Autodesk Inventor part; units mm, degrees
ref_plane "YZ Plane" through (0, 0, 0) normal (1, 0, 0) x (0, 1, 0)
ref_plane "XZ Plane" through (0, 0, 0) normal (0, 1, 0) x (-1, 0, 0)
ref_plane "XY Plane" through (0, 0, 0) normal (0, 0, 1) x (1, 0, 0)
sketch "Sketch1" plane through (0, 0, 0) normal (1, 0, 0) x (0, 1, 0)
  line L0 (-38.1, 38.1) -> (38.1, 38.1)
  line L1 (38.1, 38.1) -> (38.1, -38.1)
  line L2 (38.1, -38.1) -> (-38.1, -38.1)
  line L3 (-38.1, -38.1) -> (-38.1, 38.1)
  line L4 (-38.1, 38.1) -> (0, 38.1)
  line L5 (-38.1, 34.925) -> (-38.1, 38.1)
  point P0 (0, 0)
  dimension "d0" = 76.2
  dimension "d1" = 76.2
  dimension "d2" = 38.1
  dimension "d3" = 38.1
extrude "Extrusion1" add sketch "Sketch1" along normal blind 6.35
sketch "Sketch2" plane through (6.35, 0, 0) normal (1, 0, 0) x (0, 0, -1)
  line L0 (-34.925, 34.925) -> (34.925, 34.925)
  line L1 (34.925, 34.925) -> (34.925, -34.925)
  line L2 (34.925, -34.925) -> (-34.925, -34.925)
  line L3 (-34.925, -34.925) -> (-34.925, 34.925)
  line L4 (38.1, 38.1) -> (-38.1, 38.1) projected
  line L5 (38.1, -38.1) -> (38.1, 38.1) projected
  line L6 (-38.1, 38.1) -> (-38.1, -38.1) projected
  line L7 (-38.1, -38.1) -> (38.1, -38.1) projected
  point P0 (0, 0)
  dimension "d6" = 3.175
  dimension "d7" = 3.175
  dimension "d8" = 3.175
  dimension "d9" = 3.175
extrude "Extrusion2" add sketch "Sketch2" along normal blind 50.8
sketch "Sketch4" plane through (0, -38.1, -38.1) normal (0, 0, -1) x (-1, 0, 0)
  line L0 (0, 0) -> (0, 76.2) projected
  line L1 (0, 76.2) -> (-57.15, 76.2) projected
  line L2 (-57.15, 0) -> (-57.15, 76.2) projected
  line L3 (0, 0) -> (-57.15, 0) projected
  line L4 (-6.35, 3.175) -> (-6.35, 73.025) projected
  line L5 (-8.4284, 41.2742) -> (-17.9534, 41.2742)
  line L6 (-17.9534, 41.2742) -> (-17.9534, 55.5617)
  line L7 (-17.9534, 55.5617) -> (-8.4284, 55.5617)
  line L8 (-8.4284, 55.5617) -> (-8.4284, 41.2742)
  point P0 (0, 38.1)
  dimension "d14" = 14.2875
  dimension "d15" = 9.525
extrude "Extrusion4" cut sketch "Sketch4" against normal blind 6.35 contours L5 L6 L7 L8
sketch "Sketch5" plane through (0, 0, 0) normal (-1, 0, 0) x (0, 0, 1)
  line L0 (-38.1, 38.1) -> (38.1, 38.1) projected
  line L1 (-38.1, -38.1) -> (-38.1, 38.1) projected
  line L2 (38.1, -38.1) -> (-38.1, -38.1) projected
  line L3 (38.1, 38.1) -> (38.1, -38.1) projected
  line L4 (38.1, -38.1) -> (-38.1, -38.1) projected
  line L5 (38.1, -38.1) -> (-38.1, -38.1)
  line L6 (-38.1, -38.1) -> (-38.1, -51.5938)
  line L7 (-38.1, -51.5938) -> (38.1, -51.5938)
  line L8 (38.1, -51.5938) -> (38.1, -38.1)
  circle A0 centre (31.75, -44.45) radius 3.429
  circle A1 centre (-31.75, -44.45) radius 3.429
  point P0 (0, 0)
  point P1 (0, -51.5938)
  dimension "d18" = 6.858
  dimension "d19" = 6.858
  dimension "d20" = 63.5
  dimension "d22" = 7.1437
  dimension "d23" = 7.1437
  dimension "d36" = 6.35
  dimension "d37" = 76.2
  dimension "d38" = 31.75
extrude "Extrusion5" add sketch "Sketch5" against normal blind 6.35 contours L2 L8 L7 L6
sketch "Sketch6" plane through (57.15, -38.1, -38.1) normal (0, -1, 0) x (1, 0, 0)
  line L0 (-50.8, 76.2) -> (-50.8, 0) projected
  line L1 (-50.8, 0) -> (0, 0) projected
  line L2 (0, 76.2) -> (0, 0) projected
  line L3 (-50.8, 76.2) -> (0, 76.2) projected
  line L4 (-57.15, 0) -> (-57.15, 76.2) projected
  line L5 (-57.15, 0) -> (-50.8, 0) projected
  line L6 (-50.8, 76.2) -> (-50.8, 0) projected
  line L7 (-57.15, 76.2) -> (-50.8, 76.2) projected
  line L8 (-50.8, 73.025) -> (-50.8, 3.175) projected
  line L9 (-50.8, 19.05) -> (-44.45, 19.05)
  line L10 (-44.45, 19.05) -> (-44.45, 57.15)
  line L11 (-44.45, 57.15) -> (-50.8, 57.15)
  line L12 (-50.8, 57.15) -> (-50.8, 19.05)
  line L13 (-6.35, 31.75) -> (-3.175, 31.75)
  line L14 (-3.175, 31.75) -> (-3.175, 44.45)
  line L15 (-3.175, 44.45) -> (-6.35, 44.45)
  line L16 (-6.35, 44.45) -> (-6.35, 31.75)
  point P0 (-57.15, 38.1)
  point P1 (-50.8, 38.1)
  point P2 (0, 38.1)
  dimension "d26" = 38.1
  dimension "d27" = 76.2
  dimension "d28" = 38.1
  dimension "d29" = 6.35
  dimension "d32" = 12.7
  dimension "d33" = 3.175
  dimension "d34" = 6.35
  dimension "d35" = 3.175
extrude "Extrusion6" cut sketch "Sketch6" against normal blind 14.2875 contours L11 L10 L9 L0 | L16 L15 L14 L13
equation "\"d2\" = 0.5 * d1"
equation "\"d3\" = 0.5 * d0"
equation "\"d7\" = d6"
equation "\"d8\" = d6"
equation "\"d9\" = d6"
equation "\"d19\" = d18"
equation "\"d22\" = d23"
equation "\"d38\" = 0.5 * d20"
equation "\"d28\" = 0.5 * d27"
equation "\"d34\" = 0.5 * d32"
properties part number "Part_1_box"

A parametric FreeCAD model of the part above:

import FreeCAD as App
import Part
import Sketcher
Q = App.Units.Quantity


def add_polygon(sketch, points):
    """Adds a closed chain of lines whose ends are joined by coincident constraints."""
    first, n = sketch.GeometryCount, len(points)
    for a, b in zip(points, points[1:] + points[:1]):
        sketch.addGeometry(Part.LineSegment(App.Vector(*a, 0), App.Vector(*b, 0)), False)
    for i in range(n):
        sketch.addConstraint(Sketcher.Constraint("Coincident", first + i, 2, first + (i + 1) % n, 1))

doc = App.newDocument("Part")
params = doc.addObject("Spreadsheet::Sheet", "Params")
for row, (alias, value) in enumerate([
    ("sketch1_width", "3 in"),
    ("pad1_length", "0.25 in"),
    ("sketch2_width", "3 in"),
    ("pad2_length", "2 in"),
    ("sketch3_width", "0.375 in"),
    ("sketch3_height", "0.5625 in"),
    ("pocket1_length", "0.25 in"),
    ("sketch4_diameter", "0.27 in"),
    ("sketch4_height", "3 in"),
    ("pad3_length", "0.25 in"),
    ("sketch5_height", "1.5 in"),
    ("sketch5_height2", "0.5 in"),
    ("sketch5_width", "0.25 in"),
    ("sketch5_width2", "0.125 in"),
    ("pocket2_length", "0.5625 in"),
], start=1):
    params.set(f"A{row}", alias)
    params.set(f"B{row}", "=" + value)
    params.setAlias(f"B{row}", alias)

body = doc.addObject("PartDesign::Body", "Body")

# Sketch on YZ plane
sketch1 = body.newObject("Sketcher::SketchObject", "Sketch")
sketch1.AttachmentSupport = (doc.getObject("YZ_Plane"), [""])
sketch1.MapMode = "FlatFace"
add_polygon(sketch1, [(38, 38), (-38, 38), (-38, -38), (38, -38)])  # lines 0-3
sketch1.addConstraint(Sketcher.Constraint("Horizontal", 0))
sketch1.addConstraint(Sketcher.Constraint("Vertical", 1))
sketch1.addConstraint(Sketcher.Constraint("Horizontal", 2))
sketch1.addConstraint(Sketcher.Constraint("Vertical", 3))
sketch1.addConstraint(Sketcher.Constraint("Symmetric", 0, 2, 2, 2, -1, 1))
sketch1.addConstraint(Sketcher.Constraint("Equal", 2, 1))
sketch1.addConstraint(Sketcher.Constraint("DistanceX", 0, 2, 0, 1, Q("3 in")))
sketch1.setExpression("Constraints[10]", "Params.sketch1_width")
pad1 = body.newObject("PartDesign::Pad", "Pad")
pad1.Profile = sketch1
pad1.setExpression("Length", "Params.pad1_length")

# Sketch on YZ plane
sketch2 = body.newObject("Sketcher::SketchObject", "Sketch001")
sketch2.AttachmentSupport = (doc.getObject("YZ_Plane"), [""])
sketch2.MapMode = "FlatFace"
sketch2.AttachmentOffset = App.Placement(App.Vector(0, 0, 0.25 * 25.4), App.Rotation())
add_polygon(sketch2, [(-38, -38), (38, -38), (38, 38), (-38, 38)])  # lines 0-3
add_polygon(sketch2, [(-35, 35), (35, 35), (35, -35), (-35, -35)])  # lines 4-7
sketch2.addConstraint(Sketcher.Constraint("Horizontal", 0))
sketch2.addConstraint(Sketcher.Constraint("Vertical", 1))
sketch2.addConstraint(Sketcher.Constraint("Horizontal", 2))
sketch2.addConstraint(Sketcher.Constraint("Vertical", 3))
sketch2.addConstraint(Sketcher.Constraint("Horizontal", 4))
sketch2.addConstraint(Sketcher.Constraint("Vertical", 5))
sketch2.addConstraint(Sketcher.Constraint("Horizontal", 6))
sketch2.addConstraint(Sketcher.Constraint("Vertical", 7))
sketch2.addConstraint(Sketcher.Constraint("Symmetric", 0, 2, 2, 2, -1, 1))
sketch2.addConstraint(Sketcher.Constraint("Symmetric", 4, 2, 6, 2, -1, 1))
sketch2.addConstraint(Sketcher.Constraint("Equal", 2, 1))
sketch2.addConstraint(Sketcher.Constraint("Equal", 6, 5))
sketch2.addConstraint(Sketcher.Constraint("DistanceX", 0, 1, 0, 2, Q("3 in")))
sketch2.addConstraint(Sketcher.Constraint("DistanceX", 4, 2, 1, 2, Q("0.125 in")))
sketch2.setExpression("Constraints[20]", "Params.sketch2_width")
pad2 = body.newObject("PartDesign::Pad", "Pad001")
pad2.Profile = sketch2
pad2.setExpression("Length", "Params.pad2_length")

# Sketch on XY plane
sketch3 = body.newObject("Sketcher::SketchObject", "Sketch002")
sketch3.AttachmentSupport = (doc.getObject("XY_Plane"), [""])
sketch3.MapMode = "FlatFace"
sketch3.AttachmentOffset = App.Placement(App.Vector(0, 0, -1.5 * 25.4), App.Rotation())
add_polygon(sketch3, [(18, 3), (8, 3), (8, 17), (18, 17)])  # lines 0-3
sketch3.addConstraint(Sketcher.Constraint("Horizontal", 0))
sketch3.addConstraint(Sketcher.Constraint("Vertical", 1))
sketch3.addConstraint(Sketcher.Constraint("Horizontal", 2))
sketch3.addConstraint(Sketcher.Constraint("Vertical", 3))
sketch3.addConstraint(Sketcher.Constraint("DistanceX", 0, 2, 0, 1, Q("0.375 in")))
sketch3.addConstraint(Sketcher.Constraint("DistanceY", 1, 1, 1, 2, Q("0.5625 in")))
sketch3.addConstraint(Sketcher.Constraint("DistanceX", -1, 1, 0, 2, 8.4284))
sketch3.addConstraint(Sketcher.Constraint("DistanceY", -1, 1, 0, 2, 3.1742))
sketch3.setExpression("Constraints[8]", "Params.sketch3_width")
sketch3.setExpression("Constraints[9]", "Params.sketch3_height")
pocket1 = body.newObject("PartDesign::Pocket", "Pocket")
pocket1.Profile = sketch3
pocket1.setExpression("Length", "Params.pocket1_length")
pocket1.Reversed = True

# Sketch on YZ plane
sketch4 = body.newObject("Sketcher::SketchObject", "Sketch003")
sketch4.AttachmentSupport = (doc.getObject("YZ_Plane"), [""])
sketch4.MapMode = "FlatFace"
add_polygon(sketch4, [(-38.1, 38.1), (-38.1, -38.1), (-51.6, -38.1), (-51.6, 38.1)])  # lines 0-3
sketch4.addGeometry(Part.Circle(App.Vector(-44.5, -31.8, 0), App.Vector(0, 0, 1), 3.4), False)  # 4
sketch4.addGeometry(Part.Circle(App.Vector(-44.5, 31.8, 0), App.Vector(0, 0, 1), 3.4), False)  # 5
sketch4.addConstraint(Sketcher.Constraint("Vertical", 0))
sketch4.addConstraint(Sketcher.Constraint("Horizontal", 1))
sketch4.addConstraint(Sketcher.Constraint("Vertical", 2))
sketch4.addConstraint(Sketcher.Constraint("Horizontal", 3))
sketch4.addConstraint(Sketcher.Constraint("Equal", 4, 5))
sketch4.addConstraint(Sketcher.Constraint("Symmetric", 4, 3, 5, 3, -1))
sketch4.addConstraint(Sketcher.Constraint("Diameter", 4, Q("0.27 in")))
sketch4.addConstraint(Sketcher.Constraint("DistanceY", 0, 2, 0, 1, Q("3 in")))
sketch4.addConstraint(Sketcher.Constraint("DistanceY", 4, 3, 5, 3, Q("2.5 in")))
sketch4.addConstraint(Sketcher.Constraint("DistanceX", 4, 3, 0, 2, Q("0.25 in")))
sketch4.addConstraint(Sketcher.Constraint("DistanceY", 0, 2, 4, 3, Q("0.25 in")))
sketch4.addConstraint(Sketcher.Constraint("DistanceX", 1, 2, 4, 3, Q("0.281252 in")))
sketch4.addConstraint(Sketcher.Constraint("DistanceX", 0, 2, -1, 1, Q("1.5 in")))
sketch4.setExpression("Constraints[10]", "Params.sketch4_diameter")
sketch4.setExpression("Constraints[11]", "Params.sketch4_height")
pad3 = body.newObject("PartDesign::Pad", "Pad002")
pad3.Profile = sketch4
pad3.setExpression("Length", "Params.pad3_length")

# Sketch on XZ plane
sketch5 = body.newObject("Sketcher::SketchObject", "Sketch004")
sketch5.AttachmentSupport = (doc.getObject("XZ_Plane"), [""])
sketch5.MapMode = "FlatFace"
sketch5.AttachmentOffset = App.Placement(App.Vector(0, 0, 1.5 * 25.4), App.Rotation())
add_polygon(sketch5, [(12.7, 19.1), (6.3, 19.1), (6.3, -19.1), (12.7, -19.1)])  # lines 0-3
add_polygon(sketch5, [(50.8, 6.3), (50.8, -6.3), (54, -6.3), (54, 6.3)])  # lines 4-7
sketch5.addConstraint(Sketcher.Constraint("Horizontal", 0))
sketch5.addConstraint(Sketcher.Constraint("Vertical", 1))
sketch5.addConstraint(Sketcher.Constraint("Horizontal", 2))
sketch5.addConstraint(Sketcher.Constraint("Vertical", 3))
sketch5.addConstraint(Sketcher.Constraint("Vertical", 4))
sketch5.addConstraint(Sketcher.Constraint("Horizontal", 5))
sketch5.addConstraint(Sketcher.Constraint("Vertical", 6))
sketch5.addConstraint(Sketcher.Constraint("Horizontal", 7))
sketch5.addConstraint(Sketcher.Constraint("DistanceY", 1, 2, 1, 1, Q("1.5 in")))
sketch5.addConstraint(Sketcher.Constraint("DistanceY", 4, 2, 4, 1, Q("0.5 in")))
sketch5.addConstraint(Sketcher.Constraint("DistanceX", 0, 2, 0, 1, Q("0.25 in")))
sketch5.addConstraint(Sketcher.Constraint("DistanceX", -1, 1, 2, 2, Q("0.5 in")))
sketch5.addConstraint(Sketcher.Constraint("DistanceX", 2, 2, 4, 2, Q("1.5 in")))
sketch5.addConstraint(Sketcher.Constraint("DistanceY", 2, 2, 4, 2, Q("0.5 in")))
sketch5.addConstraint(Sketcher.Constraint("DistanceX", 5, 1, 5, 2, Q("0.125 in")))
sketch5.addConstraint(Sketcher.Constraint("DistanceY", 4, 2, -1, 1, Q("0.25 in")))
sketch5.setExpression("Constraints[16]", "Params.sketch5_height")
sketch5.setExpression("Constraints[17]", "Params.sketch5_height2")
sketch5.setExpression("Constraints[18]", "Params.sketch5_width")
sketch5.setExpression("Constraints[22]", "Params.sketch5_width2")
pocket2 = body.newObject("PartDesign::Pocket", "Pocket001")
pocket2.Profile = sketch5
pocket2.setExpression("Length", "Params.pocket2_length")

doc.recompute()
